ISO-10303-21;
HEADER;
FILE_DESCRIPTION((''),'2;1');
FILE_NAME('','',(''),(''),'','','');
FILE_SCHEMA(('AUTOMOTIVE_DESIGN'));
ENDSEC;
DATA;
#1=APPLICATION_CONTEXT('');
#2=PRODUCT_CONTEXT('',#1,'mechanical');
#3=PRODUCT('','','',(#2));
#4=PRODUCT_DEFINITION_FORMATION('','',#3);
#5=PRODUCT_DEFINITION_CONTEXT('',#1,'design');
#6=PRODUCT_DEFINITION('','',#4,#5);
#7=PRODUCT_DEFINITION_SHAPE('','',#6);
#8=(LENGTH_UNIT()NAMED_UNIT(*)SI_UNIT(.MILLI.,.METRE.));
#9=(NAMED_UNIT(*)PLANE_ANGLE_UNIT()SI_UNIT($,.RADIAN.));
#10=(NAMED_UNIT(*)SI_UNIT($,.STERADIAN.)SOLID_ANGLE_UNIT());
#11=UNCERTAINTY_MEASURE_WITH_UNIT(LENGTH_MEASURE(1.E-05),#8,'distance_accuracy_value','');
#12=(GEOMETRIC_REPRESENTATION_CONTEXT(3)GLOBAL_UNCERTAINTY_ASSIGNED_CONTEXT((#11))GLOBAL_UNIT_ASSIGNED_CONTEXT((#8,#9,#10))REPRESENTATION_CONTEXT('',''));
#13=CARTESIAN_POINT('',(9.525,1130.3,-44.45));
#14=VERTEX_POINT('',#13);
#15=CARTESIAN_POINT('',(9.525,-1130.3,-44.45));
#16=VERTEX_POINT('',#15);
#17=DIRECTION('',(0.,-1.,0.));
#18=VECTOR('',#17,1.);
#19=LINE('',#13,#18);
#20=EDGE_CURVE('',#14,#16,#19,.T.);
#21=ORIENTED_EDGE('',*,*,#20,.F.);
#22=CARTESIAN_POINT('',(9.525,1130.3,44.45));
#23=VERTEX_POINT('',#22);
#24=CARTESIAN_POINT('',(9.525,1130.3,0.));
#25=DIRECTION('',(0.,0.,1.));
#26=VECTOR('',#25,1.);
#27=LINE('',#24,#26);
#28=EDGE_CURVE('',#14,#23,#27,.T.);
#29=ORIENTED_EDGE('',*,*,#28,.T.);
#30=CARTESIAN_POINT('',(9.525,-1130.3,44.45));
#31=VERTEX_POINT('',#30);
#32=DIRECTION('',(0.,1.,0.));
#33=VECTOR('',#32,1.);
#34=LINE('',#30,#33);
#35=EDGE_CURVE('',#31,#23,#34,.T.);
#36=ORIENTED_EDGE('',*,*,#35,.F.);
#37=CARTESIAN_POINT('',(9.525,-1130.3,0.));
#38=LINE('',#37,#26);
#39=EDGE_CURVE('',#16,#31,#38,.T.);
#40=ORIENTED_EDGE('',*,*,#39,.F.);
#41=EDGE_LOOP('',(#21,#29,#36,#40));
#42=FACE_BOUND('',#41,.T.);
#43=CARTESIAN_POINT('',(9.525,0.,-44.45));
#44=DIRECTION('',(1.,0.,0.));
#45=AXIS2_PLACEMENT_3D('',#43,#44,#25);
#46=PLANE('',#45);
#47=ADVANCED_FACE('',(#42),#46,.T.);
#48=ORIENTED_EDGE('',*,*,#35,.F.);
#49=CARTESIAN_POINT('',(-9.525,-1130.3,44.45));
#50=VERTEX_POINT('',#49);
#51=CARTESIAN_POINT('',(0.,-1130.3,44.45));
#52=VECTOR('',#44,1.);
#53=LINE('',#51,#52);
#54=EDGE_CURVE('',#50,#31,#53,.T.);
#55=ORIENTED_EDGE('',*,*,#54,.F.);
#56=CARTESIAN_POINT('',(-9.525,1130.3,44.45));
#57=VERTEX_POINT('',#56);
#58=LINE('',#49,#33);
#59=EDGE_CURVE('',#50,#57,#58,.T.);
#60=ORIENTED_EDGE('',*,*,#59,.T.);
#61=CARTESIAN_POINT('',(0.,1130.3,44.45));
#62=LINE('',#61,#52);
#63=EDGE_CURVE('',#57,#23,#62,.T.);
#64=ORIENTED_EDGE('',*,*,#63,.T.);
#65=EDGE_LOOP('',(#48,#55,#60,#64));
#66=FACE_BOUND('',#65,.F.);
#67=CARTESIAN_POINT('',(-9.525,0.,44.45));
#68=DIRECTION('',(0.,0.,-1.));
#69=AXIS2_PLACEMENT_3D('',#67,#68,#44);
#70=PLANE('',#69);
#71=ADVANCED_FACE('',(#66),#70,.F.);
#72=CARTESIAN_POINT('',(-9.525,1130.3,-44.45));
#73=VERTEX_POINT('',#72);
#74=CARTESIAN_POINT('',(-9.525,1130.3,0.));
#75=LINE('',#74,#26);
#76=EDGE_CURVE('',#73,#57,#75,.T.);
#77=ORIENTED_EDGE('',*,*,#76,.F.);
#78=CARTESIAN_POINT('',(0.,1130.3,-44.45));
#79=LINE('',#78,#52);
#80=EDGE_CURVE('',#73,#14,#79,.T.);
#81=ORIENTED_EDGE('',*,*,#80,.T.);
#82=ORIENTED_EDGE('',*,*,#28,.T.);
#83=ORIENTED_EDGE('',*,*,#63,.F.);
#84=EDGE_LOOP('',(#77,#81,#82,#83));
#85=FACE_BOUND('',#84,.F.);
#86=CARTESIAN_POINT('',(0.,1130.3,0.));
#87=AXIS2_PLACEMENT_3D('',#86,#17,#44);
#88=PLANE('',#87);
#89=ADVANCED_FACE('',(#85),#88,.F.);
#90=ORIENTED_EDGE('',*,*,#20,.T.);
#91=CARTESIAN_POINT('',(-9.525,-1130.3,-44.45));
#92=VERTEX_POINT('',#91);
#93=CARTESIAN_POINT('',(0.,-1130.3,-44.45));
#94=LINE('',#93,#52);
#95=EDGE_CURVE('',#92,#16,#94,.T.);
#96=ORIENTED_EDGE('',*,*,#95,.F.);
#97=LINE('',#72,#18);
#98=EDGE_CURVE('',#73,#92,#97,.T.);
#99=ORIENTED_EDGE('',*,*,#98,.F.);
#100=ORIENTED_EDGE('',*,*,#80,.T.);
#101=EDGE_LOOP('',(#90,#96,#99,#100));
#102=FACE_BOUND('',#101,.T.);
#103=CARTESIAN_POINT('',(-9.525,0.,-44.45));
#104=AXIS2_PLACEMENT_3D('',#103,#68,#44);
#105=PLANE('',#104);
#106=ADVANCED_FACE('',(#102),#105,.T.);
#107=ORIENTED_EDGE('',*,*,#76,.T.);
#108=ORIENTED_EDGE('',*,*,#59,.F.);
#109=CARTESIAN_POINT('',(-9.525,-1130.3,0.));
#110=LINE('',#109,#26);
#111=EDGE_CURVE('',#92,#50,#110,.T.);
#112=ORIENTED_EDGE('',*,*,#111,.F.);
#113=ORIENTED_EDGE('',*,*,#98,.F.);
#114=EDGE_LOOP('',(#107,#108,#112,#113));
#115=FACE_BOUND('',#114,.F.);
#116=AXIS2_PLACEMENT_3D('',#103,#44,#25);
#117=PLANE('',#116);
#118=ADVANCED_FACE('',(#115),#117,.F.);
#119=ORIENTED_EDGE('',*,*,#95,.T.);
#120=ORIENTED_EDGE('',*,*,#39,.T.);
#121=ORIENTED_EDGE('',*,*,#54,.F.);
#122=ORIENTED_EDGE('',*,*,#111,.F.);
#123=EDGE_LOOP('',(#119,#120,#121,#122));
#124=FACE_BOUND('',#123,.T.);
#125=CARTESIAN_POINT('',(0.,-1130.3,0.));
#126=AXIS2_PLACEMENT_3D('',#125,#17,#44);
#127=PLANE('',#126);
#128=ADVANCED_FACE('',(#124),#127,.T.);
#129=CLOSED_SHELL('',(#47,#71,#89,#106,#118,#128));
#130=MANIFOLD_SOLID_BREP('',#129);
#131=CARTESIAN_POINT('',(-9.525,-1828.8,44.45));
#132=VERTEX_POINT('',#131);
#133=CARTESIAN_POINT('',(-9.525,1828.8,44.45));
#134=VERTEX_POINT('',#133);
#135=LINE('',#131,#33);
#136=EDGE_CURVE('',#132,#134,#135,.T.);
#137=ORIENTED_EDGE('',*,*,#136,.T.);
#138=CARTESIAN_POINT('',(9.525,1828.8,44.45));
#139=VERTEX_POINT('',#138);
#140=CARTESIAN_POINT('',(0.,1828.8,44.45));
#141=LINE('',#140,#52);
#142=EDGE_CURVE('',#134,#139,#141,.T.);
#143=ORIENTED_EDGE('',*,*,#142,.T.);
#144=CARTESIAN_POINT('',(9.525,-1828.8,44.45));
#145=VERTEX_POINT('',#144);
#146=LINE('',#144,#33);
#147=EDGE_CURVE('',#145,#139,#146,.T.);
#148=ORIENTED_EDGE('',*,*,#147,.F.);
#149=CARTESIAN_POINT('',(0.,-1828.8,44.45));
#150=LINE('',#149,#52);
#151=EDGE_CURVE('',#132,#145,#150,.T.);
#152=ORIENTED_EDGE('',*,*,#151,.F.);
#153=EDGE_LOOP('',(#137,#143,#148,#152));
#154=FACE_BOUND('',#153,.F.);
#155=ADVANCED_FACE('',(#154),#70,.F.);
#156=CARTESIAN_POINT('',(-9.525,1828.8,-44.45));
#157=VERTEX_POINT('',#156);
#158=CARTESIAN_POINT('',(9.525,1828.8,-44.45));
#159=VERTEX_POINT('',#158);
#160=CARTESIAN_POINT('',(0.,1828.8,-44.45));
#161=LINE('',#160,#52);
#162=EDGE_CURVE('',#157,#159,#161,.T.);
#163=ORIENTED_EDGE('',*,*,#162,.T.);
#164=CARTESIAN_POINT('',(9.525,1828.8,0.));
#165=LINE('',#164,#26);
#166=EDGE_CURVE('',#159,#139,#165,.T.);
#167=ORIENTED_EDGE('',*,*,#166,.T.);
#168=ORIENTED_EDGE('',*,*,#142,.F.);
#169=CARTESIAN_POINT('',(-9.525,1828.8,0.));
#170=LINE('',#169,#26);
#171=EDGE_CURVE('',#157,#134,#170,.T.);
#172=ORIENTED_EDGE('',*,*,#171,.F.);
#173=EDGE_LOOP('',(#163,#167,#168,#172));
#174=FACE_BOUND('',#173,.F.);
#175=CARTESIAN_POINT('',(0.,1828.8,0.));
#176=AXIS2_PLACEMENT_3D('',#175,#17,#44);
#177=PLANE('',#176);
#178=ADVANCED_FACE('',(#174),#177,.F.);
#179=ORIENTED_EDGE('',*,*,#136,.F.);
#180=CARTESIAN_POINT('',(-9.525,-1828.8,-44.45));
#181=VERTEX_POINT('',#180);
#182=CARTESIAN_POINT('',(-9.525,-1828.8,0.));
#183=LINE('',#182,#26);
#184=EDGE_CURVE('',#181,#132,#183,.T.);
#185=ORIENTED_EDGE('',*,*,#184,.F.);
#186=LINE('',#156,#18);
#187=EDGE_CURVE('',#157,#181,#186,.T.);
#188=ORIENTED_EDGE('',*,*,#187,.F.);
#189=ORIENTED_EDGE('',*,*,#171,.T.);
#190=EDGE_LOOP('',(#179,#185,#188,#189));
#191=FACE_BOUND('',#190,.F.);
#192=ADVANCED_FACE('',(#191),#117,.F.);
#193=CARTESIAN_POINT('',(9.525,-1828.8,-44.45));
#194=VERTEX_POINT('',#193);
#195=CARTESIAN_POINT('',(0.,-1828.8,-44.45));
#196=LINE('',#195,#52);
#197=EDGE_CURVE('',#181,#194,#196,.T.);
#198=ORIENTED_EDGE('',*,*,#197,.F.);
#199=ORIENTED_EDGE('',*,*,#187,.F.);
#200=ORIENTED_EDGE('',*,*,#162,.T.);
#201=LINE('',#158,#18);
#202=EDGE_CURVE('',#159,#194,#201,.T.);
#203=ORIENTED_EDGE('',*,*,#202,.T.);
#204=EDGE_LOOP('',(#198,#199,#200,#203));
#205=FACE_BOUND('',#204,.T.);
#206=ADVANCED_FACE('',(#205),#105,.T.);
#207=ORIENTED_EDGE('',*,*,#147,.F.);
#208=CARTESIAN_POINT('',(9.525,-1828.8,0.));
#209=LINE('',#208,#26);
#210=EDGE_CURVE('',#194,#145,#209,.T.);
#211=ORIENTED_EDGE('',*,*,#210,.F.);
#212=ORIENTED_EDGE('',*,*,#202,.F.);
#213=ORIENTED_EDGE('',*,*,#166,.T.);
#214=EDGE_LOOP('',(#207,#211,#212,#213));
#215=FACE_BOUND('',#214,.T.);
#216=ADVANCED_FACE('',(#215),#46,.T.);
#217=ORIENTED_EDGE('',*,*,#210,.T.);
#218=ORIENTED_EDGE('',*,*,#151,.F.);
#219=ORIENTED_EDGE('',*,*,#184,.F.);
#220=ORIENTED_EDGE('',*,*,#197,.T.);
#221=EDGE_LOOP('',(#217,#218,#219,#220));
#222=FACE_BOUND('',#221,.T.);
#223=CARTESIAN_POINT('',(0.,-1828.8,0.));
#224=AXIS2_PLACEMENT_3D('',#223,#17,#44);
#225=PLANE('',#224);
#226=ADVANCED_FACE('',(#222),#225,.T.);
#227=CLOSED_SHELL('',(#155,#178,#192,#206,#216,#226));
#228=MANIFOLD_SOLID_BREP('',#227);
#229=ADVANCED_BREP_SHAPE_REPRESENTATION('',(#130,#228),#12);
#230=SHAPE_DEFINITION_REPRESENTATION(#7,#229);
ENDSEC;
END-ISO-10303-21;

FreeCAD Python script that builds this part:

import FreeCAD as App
import Part
import Sketcher
from FreeCAD import Vector
Q = App.Units.Quantity


def add_polygon(sketch, points):
    """Adds a closed chain of lines whose ends are joined by coincident constraints."""
    first, n = sketch.GeometryCount, len(points)
    for a, b in zip(points, points[1:] + points[:1]):
        sketch.addGeometry(Part.LineSegment(App.Vector(*a, 0), App.Vector(*b, 0)), False)
    for i in range(n):
        sketch.addConstraint(Sketcher.Constraint("Coincident", first + i, 2, first + (i + 1) % n, 1))

doc = App.newDocument("Part")
params = doc.addObject("Spreadsheet::Sheet", "Params")
for row, (alias, value) in enumerate([
    ("sketch1_height", "3.5 in"),
    ("sketch1_width", "0.75 in"),
    ("pad1_length", "89 in"),
    ("sketch2_height", "3.5 in"),
    ("sketch2_width", "0.75 in"),
    ("pad2_length", "144 in"),
], start=1):
    params.set(f"A{row}", alias)
    params.set(f"B{row}", "=" + value)
    params.setAlias(f"B{row}", alias)

body = doc.addObject("PartDesign::Body", "Body")

sketch1 = body.newObject("Sketcher::SketchObject", "Sketch")
sketch1.AttachmentSupport = (doc.getObject("XZ_Plane"), [""])
sketch1.MapMode = "FlatFace"
add_polygon(sketch1, [(-10, 44), (-10, -44), (10, -44), (10, 44)])
sketch1.addConstraint([
    Sketcher.Constraint("Vertical", 0),
    Sketcher.Constraint("Horizontal", 1),
    Sketcher.Constraint("Vertical", 2),
    Sketcher.Constraint("Horizontal", 3),
    Sketcher.Constraint("Symmetric", 0, 2, 2, 2, -1, 1),
    Sketcher.Constraint("DistanceY", 0, 2, 0, 1, Q("3.5 in")),
    Sketcher.Constraint("DistanceX", 1, 1, 1, 2, Q("0.75 in")),
])
sketch1.setExpression("Constraints[9]", "Params.sketch1_height")
sketch1.setExpression("Constraints[10]", "Params.sketch1_width")
pad1 = body.newObject("PartDesign::Pad", "Pad")
pad1.Profile = sketch1
pad1.setExpression("Length", "Params.pad1_length")
pad1.Midplane = True
body2 = doc.addObject("PartDesign::Body", "Body001")

sketch2 = body2.newObject("Sketcher::SketchObject", "Sketch001")
sketch2.AttachmentSupport = (doc.getObject("XZ_Plane001"), [""])
sketch2.MapMode = "FlatFace"
add_polygon(sketch2, [(-10, 44), (-10, -44), (10, -44), (10, 44)])
sketch2.addConstraint([
    Sketcher.Constraint("Vertical", 0),
    Sketcher.Constraint("Horizontal", 1),
    Sketcher.Constraint("Vertical", 2),
    Sketcher.Constraint("Horizontal", 3),
    Sketcher.Constraint("Symmetric", 0, 2, 2, 2, -1, 1),
    Sketcher.Constraint("DistanceY", 0, 2, 0, 1, Q("3.5 in")),
    Sketcher.Constraint("DistanceX", 1, 1, 1, 2, Q("0.75 in")),
])
sketch2.setExpression("Constraints[9]", "Params.sketch2_height")
sketch2.setExpression("Constraints[10]", "Params.sketch2_width")
pad2 = body2.newObject("PartDesign::Pad", "Pad001")
pad2.Profile = sketch2
pad2.setExpression("Length", "Params.pad2_length")
pad2.Midplane = True

doc.recompute()
